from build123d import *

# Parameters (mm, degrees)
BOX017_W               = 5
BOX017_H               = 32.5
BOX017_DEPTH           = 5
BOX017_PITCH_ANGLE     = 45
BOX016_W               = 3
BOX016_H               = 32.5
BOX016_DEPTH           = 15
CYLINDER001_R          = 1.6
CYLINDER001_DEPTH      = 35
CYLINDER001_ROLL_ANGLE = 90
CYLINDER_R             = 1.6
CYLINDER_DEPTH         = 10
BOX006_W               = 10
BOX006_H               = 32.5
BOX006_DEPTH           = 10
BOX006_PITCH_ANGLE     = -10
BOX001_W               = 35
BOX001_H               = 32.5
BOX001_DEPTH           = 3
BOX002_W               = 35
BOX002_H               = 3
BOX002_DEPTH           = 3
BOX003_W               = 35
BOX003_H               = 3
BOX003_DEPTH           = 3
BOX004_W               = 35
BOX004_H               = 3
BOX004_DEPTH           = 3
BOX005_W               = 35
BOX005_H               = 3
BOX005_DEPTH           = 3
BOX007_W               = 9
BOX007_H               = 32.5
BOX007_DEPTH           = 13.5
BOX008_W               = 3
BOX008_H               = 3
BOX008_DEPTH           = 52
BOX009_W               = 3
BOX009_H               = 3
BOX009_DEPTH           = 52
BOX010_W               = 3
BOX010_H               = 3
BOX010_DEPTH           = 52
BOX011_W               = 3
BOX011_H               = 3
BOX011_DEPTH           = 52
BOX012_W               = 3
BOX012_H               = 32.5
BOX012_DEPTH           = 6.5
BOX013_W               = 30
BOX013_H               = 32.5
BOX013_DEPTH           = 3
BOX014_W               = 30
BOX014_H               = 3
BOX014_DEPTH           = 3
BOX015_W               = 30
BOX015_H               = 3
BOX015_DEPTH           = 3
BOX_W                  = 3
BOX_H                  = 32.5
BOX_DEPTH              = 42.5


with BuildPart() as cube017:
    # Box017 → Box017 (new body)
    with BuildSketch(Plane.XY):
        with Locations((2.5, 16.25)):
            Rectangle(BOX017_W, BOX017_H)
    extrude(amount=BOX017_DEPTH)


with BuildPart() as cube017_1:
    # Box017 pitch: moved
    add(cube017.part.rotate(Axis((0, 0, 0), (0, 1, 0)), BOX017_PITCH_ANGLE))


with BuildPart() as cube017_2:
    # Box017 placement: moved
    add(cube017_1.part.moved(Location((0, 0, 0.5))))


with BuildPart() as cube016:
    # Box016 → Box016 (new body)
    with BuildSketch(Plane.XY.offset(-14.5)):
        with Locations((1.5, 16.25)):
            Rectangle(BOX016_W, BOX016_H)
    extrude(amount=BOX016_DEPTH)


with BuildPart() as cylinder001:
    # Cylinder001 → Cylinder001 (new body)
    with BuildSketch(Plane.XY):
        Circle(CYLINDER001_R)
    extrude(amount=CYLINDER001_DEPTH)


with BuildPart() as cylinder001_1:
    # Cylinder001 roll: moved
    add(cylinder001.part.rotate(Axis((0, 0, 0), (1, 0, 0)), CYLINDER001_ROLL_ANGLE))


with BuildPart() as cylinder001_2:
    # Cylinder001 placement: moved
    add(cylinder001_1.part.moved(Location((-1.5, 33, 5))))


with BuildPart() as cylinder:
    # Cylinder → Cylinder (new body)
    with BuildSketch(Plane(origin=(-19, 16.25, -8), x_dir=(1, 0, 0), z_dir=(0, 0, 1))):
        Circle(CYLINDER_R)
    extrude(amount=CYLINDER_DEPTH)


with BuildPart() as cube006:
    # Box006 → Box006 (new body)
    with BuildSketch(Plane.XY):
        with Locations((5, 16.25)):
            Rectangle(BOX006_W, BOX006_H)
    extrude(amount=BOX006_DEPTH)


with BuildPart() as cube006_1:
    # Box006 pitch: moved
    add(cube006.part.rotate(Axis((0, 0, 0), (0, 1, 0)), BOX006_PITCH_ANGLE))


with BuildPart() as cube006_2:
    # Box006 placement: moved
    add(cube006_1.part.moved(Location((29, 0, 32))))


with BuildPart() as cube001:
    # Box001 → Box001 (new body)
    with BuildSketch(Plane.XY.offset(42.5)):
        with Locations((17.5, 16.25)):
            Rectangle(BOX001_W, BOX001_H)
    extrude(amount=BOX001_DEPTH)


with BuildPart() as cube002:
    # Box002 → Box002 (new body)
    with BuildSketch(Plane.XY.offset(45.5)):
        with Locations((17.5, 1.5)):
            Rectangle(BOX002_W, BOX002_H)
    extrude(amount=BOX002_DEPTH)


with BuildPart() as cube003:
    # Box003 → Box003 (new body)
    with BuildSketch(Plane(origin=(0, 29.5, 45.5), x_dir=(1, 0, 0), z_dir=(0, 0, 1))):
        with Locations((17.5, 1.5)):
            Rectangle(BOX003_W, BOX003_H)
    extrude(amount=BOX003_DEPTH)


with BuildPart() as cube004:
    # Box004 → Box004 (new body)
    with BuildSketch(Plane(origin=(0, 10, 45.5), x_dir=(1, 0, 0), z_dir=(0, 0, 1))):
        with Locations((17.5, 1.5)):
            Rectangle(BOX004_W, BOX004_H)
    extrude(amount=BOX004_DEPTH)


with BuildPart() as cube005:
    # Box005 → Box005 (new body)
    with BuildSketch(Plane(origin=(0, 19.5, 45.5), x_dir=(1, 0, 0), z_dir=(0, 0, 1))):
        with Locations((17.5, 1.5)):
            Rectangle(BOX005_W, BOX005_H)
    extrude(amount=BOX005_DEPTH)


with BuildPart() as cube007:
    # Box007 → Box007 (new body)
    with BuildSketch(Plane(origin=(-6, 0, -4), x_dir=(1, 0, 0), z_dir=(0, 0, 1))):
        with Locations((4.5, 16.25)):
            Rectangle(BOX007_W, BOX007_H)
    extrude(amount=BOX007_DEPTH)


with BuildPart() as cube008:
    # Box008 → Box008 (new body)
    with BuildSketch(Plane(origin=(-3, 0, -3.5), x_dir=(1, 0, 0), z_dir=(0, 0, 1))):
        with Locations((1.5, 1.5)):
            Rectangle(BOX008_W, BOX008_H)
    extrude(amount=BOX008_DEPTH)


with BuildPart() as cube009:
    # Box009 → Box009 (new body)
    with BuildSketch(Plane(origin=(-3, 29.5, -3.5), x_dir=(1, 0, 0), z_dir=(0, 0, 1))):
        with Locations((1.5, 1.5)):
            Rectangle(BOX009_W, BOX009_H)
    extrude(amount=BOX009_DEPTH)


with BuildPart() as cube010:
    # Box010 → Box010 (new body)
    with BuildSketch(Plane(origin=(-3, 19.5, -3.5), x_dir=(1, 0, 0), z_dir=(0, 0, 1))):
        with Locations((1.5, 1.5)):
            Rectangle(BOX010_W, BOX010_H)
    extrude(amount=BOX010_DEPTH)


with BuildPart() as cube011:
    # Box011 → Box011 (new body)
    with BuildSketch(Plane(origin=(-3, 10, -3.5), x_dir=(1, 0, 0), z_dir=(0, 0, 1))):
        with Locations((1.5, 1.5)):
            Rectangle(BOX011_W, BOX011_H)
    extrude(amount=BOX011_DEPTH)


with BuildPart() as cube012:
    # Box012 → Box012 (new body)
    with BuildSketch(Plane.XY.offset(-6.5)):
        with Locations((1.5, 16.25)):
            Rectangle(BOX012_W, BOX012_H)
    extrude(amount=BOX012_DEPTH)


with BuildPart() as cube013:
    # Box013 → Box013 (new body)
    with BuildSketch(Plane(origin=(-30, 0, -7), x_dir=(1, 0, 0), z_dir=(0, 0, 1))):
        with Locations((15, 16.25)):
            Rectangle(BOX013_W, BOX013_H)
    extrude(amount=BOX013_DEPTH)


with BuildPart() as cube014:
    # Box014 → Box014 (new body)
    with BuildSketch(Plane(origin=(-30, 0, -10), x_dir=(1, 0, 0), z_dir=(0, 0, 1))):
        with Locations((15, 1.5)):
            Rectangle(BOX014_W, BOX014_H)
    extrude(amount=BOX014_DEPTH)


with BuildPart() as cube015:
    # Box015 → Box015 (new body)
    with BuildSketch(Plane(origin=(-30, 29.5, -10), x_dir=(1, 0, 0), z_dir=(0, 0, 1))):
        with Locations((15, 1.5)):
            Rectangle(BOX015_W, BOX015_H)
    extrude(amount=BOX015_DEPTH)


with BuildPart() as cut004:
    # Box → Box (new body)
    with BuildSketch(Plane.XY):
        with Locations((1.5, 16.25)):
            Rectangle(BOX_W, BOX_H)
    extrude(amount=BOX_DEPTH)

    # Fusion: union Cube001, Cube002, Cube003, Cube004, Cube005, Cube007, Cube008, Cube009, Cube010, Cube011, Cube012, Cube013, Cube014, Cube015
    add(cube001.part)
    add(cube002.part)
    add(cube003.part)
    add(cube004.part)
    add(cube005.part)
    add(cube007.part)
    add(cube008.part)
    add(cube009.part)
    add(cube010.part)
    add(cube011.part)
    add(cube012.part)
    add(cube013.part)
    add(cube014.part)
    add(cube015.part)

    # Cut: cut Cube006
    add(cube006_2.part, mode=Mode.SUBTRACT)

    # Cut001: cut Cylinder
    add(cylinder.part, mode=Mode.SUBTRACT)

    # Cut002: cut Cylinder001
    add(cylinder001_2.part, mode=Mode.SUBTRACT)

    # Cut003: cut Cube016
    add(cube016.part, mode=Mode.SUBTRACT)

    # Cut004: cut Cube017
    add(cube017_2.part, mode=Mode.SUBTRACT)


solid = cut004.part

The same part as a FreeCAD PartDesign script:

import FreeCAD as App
import Part
import Sketcher
Q = App.Units.Quantity


def add_polygon(sketch, points):
    """Adds a closed chain of lines whose ends are joined by coincident constraints."""
    first, n = sketch.GeometryCount, len(points)
    for a, b in zip(points, points[1:] + points[:1]):
        sketch.addGeometry(Part.LineSegment(App.Vector(*a, 0), App.Vector(*b, 0)), False)
    for i in range(n):
        sketch.addConstraint(Sketcher.Constraint("Coincident", first + i, 2, first + (i + 1) % n, 1))

doc = App.newDocument("Part")
body = doc.addObject("PartDesign::Body", "Body")

sketch1 = body.newObject("Sketcher::SketchObject", "Sketch")
sketch1.AttachmentSupport = (doc.getObject("XY_Plane"), [""])
sketch1.MapMode = "FlatFace"
add_polygon(sketch1, [(0, 32), (0, 0), (5, 0), (5, 32)])
sketch1.addConstraint([
    Sketcher.Constraint("Vertical", 0),
    Sketcher.Constraint("Horizontal", 1),
    Sketcher.Constraint("Vertical", 2),
    Sketcher.Constraint("Horizontal", 3),
    Sketcher.Constraint("Coincident", 0, 2, -1, 1),
    Sketcher.Constraint("DistanceX", 1, 1, 1, 2, Q("5 mm")),
    Sketcher.Constraint("DistanceY", 0, 2, 0, 1, Q("32.5 mm")),
])
pad1 = body.newObject("PartDesign::Pad", "Pad")
pad1.Profile = sketch1
pad1.Length = 5
body2 = doc.addObject("PartDesign::Body", "Body001")
doc.recompute()

body.Placement = App.Placement(App.Vector(0, 0, 0), App.Rotation(App.Vector(0, 1, 0), 45))
boolean = body2.newObject("PartDesign::Boolean", "Boolean")
boolean.Type = "Fuse"
boolean.addObjects([body])
body3 = doc.addObject("PartDesign::Body", "Body002")
doc.recompute()

body2.Placement = App.Placement(App.Vector(0, 0, 0.5), App.Rotation(App.Vector(0, 0, 1), 0))
boolean2 = body3.newObject("PartDesign::Boolean", "Boolean001")
boolean2.Type = "Fuse"
boolean2.addObjects([body2])
body4 = doc.addObject("PartDesign::Body", "Body003")

sketch2 = body4.newObject("Sketcher::SketchObject", "Sketch001")
sketch2.AttachmentSupport = (doc.getObject("XY_Plane003"), [""])
sketch2.MapMode = "FlatFace"
sketch2.AttachmentOffset = App.Placement(App.Vector(0, 0, -14.5), App.Rotation())
add_polygon(sketch2, [(0, 32.5), (0, 0), (3, 0), (3, 32.5)])
sketch2.addConstraint([
    Sketcher.Constraint("Vertical", 0),
    Sketcher.Constraint("Horizontal", 1),
    Sketcher.Constraint("Vertical", 2),
    Sketcher.Constraint("Horizontal", 3),
    Sketcher.Constraint("Coincident", 0, 2, -1, 1),
    Sketcher.Constraint("DistanceX", 1, 1, 1, 2, Q("3 mm")),
    Sketcher.Constraint("DistanceY", 0, 2, 0, 1, Q("32.5 mm")),
])
pad2 = body4.newObject("PartDesign::Pad", "Pad001")
pad2.Profile = sketch2
pad2.Length = 15
body5 = doc.addObject("PartDesign::Body", "Body004")

sketch3 = body5.newObject("Sketcher::SketchObject", "Sketch002")
sketch3.AttachmentSupport = (doc.getObject("XY_Plane004"), [""])
sketch3.MapMode = "FlatFace"
sketch3.addGeometry(Part.Circle(App.Vector(0, 0, 0), App.Vector(0, 0, 1), 1.6), False)
sketch3.addConstraint([
    Sketcher.Constraint("Coincident", 0, 3, -1, 1),
    Sketcher.Constraint("Diameter", 0, Q("3.2 mm")),
])
pad3 = body5.newObject("PartDesign::Pad", "Pad002")
pad3.Profile = sketch3
pad3.Length = 35
body6 = doc.addObject("PartDesign::Body", "Body005")
doc.recompute()

body5.Placement = App.Placement(App.Vector(0, 0, 0), App.Rotation(App.Vector(1, 0, 0), 90))
boolean3 = body6.newObject("PartDesign::Boolean", "Boolean002")
boolean3.Type = "Fuse"
boolean3.addObjects([body5])
body7 = doc.addObject("PartDesign::Body", "Body006")
doc.recompute()

body6.Placement = App.Placement(App.Vector(-1.5, 33, 5), App.Rotation(App.Vector(0, 0, 1), 0))
boolean4 = body7.newObject("PartDesign::Boolean", "Boolean003")
boolean4.Type = "Fuse"
boolean4.addObjects([body6])
body8 = doc.addObject("PartDesign::Body", "Body007")

sketch4 = body8.newObject("Sketcher::SketchObject", "Sketch003")
sketch4.AttachmentSupport = (doc.getObject("XY_Plane007"), [""])
sketch4.MapMode = "FlatFace"
sketch4.AttachmentOffset = App.Placement(App.Vector(0, 0, -8), App.Rotation())
sketch4.addGeometry(Part.Circle(App.Vector(-19, 16.2, 0), App.Vector(0, 0, 1), 1.6), False)
sketch4.addConstraint([
    Sketcher.Constraint("Diameter", 0, Q("3.2 mm")),
    Sketcher.Constraint("DistanceX", 0, 3, -1, 1, Q("19 mm")),
    Sketcher.Constraint("DistanceY", -1, 1, 0, 3, Q("16.25 mm")),
])
pad4 = body8.newObject("PartDesign::Pad", "Pad003")
pad4.Profile = sketch4
pad4.Length = 10
body9 = doc.addObject("PartDesign::Body", "Body008")

sketch5 = body9.newObject("Sketcher::SketchObject", "Sketch004")
sketch5.AttachmentSupport = (doc.getObject("XY_Plane008"), [""])
sketch5.MapMode = "FlatFace"
add_polygon(sketch5, [(0, 32), (0, 0), (10, 0), (10, 32)])
sketch5.addConstraint([
    Sketcher.Constraint("Vertical", 0),
    Sketcher.Constraint("Horizontal", 1),
    Sketcher.Constraint("Vertical", 2),
    Sketcher.Constraint("Horizontal", 3),
    Sketcher.Constraint("Coincident", 0, 2, -1, 1),
    Sketcher.Constraint("DistanceX", 1, 1, 1, 2, Q("10 mm")),
    Sketcher.Constraint("DistanceY", 0, 2, 0, 1, Q("32.5 mm")),
])
pad5 = body9.newObject("PartDesign::Pad", "Pad004")
pad5.Profile = sketch5
pad5.Length = 10
body10 = doc.addObject("PartDesign::Body", "Body009")
doc.recompute()

body9.Placement = App.Placement(App.Vector(0, 0, 0), App.Rotation(App.Vector(0, 1, 0), 350))
boolean5 = body10.newObject("PartDesign::Boolean", "Boolean004")
boolean5.Type = "Fuse"
boolean5.addObjects([body9])
body11 = doc.addObject("PartDesign::Body", "Body010")
doc.recompute()

body10.Placement = App.Placement(App.Vector(29, 0, 32), App.Rotation(App.Vector(0, 0, 1), 0))
boolean6 = body11.newObject("PartDesign::Boolean", "Boolean005")
boolean6.Type = "Fuse"
boolean6.addObjects([body10])
body12 = doc.addObject("PartDesign::Body", "Body011")

sketch6 = body12.newObject("Sketcher::SketchObject", "Sketch005")
sketch6.AttachmentSupport = (doc.getObject("XY_Plane011"), [""])
sketch6.MapMode = "FlatFace"
sketch6.AttachmentOffset = App.Placement(App.Vector(0, 0, 42.5), App.Rotation())
add_polygon(sketch6, [(0, 32), (0, 0), (35, 0), (35, 32)])
sketch6.addConstraint([
    Sketcher.Constraint("Vertical", 0),
    Sketcher.Constraint("Horizontal", 1),
    Sketcher.Constraint("Vertical", 2),
    Sketcher.Constraint("Horizontal", 3),
    Sketcher.Constraint("Coincident", 0, 2, -1, 1),
    Sketcher.Constraint("DistanceX", 1, 1, 1, 2, Q("35 mm")),
    Sketcher.Constraint("DistanceY", 0, 2, 0, 1, Q("32.5 mm")),
])
pad6 = body12.newObject("PartDesign::Pad", "Pad005")
pad6.Profile = sketch6
pad6.Length = 3
body13 = doc.addObject("PartDesign::Body", "Body012")

sketch7 = body13.newObject("Sketcher::SketchObject", "Sketch006")
sketch7.AttachmentSupport = (doc.getObject("XY_Plane012"), [""])
sketch7.MapMode = "FlatFace"
sketch7.AttachmentOffset = App.Placement(App.Vector(0, 0, 45.5), App.Rotation())
add_polygon(sketch7, [(0, 3), (0, 0), (35, 0), (35, 3)])
sketch7.addConstraint([
    Sketcher.Constraint("Vertical", 0),
    Sketcher.Constraint("Horizontal", 1),
    Sketcher.Constraint("Vertical", 2),
    Sketcher.Constraint("Horizontal", 3),
    Sketcher.Constraint("Coincident", 0, 2, -1, 1),
    Sketcher.Constraint("DistanceX", 1, 1, 1, 2, Q("35 mm")),
    Sketcher.Constraint("DistanceY", 0, 2, 0, 1, Q("3 mm")),
])
pad7 = body13.newObject("PartDesign::Pad", "Pad006")
pad7.Profile = sketch7
pad7.Length = 3
body14 = doc.addObject("PartDesign::Body", "Body013")

sketch8 = body14.newObject("Sketcher::SketchObject", "Sketch007")
sketch8.AttachmentSupport = (doc.getObject("XY_Plane013"), [""])
sketch8.MapMode = "FlatFace"
sketch8.AttachmentOffset = App.Placement(App.Vector(0, 0, 45.5), App.Rotation())
add_polygon(sketch8, [(0, 32.5), (0, 29.5), (35, 29.5), (35, 32.5)])
sketch8.addConstraint([
    Sketcher.Constraint("Vertical", 0),
    Sketcher.Constraint("Horizontal", 1),
    Sketcher.Constraint("Vertical", 2),
    Sketcher.Constraint("Horizontal", 3),
    Sketcher.Constraint("PointOnObject", 0, 2, -2),
    Sketcher.Constraint("DistanceX", 1, 1, 1, 2, Q("35 mm")),
    Sketcher.Constraint("DistanceY", 0, 2, 0, 1, Q("3 mm")),
    Sketcher.Constraint("DistanceY", -1, 1, 0, 2, Q("29.5 mm")),
])
pad8 = body14.newObject("PartDesign::Pad", "Pad007")
pad8.Profile = sketch8
pad8.Length = 3
body15 = doc.addObject("PartDesign::Body", "Body014")

sketch9 = body15.newObject("Sketcher::SketchObject", "Sketch008")
sketch9.AttachmentSupport = (doc.getObject("XY_Plane014"), [""])
sketch9.MapMode = "FlatFace"
sketch9.AttachmentOffset = App.Placement(App.Vector(0, 0, 45.5), App.Rotation())
add_polygon(sketch9, [(0, 13), (0, 10), (35, 10), (35, 13)])
sketch9.addConstraint([
    Sketcher.Constraint("Vertical", 0),
    Sketcher.Constraint("Horizontal", 1),
    Sketcher.Constraint("Vertical", 2),
    Sketcher.Constraint("Horizontal", 3),
    Sketcher.Constraint("PointOnObject", 0, 2, -2),
    Sketcher.Constraint("DistanceX", 1, 1, 1, 2, Q("35 mm")),
    Sketcher.Constraint("DistanceY", 0, 2, 0, 1, Q("3 mm")),
    Sketcher.Constraint("DistanceY", -1, 1, 0, 2, Q("10 mm")),
])
pad9 = body15.newObject("PartDesign::Pad", "Pad008")
pad9.Profile = sketch9
pad9.Length = 3
body16 = doc.addObject("PartDesign::Body", "Body015")

sketch10 = body16.newObject("Sketcher::SketchObject", "Sketch009")
sketch10.AttachmentSupport = (doc.getObject("XY_Plane015"), [""])
sketch10.MapMode = "FlatFace"
sketch10.AttachmentOffset = App.Placement(App.Vector(0, 0, 45.5), App.Rotation())
add_polygon(sketch10, [(0, 22.5), (0, 19.5), (35, 19.5), (35, 22.5)])
sketch10.addConstraint([
    Sketcher.Constraint("Vertical", 0),
    Sketcher.Constraint("Horizontal", 1),
    Sketcher.Constraint("Vertical", 2),
    Sketcher.Constraint("Horizontal", 3),
    Sketcher.Constraint("PointOnObject", 0, 2, -2),
    Sketcher.Constraint("DistanceX", 1, 1, 1, 2, Q("35 mm")),
    Sketcher.Constraint("DistanceY", 0, 2, 0, 1, Q("3 mm")),
    Sketcher.Constraint("DistanceY", -1, 1, 0, 2, Q("19.5 mm")),
])
pad10 = body16.newObject("PartDesign::Pad", "Pad009")
pad10.Profile = sketch10
pad10.Length = 3
body17 = doc.addObject("PartDesign::Body", "Body016")

sketch11 = body17.newObject("Sketcher::SketchObject", "Sketch010")
sketch11.AttachmentSupport = (doc.getObject("XY_Plane016"), [""])
sketch11.MapMode = "FlatFace"
sketch11.AttachmentOffset = App.Placement(App.Vector(0, 0, -4), App.Rotation())
add_polygon(sketch11, [(-6, 32), (-6, 0), (3, 0), (3, 32)])
sketch11.addConstraint([
    Sketcher.Constraint("Vertical", 0),
    Sketcher.Constraint("Horizontal", 1),
    Sketcher.Constraint("Vertical", 2),
    Sketcher.Constraint("Horizontal", 3),
    Sketcher.Constraint("PointOnObject", 0, 2, -1),
    Sketcher.Constraint("DistanceX", 1, 1, 1, 2, Q("9 mm")),
    Sketcher.Constraint("DistanceY", 0, 2, 0, 1, Q("32.5 mm")),
    Sketcher.Constraint("DistanceX", 0, 2, -1, 1, Q("6 mm")),
])
pad11 = body17.newObject("PartDesign::Pad", "Pad010")
pad11.Profile = sketch11
pad11.Length = 13.5
body18 = doc.addObject("PartDesign::Body", "Body017")

sketch12 = body18.newObject("Sketcher::SketchObject", "Sketch011")
sketch12.AttachmentSupport = (doc.getObject("XY_Plane017"), [""])
sketch12.MapMode = "FlatFace"
sketch12.AttachmentOffset = App.Placement(App.Vector(0, 0, -3.5), App.Rotation())
add_polygon(sketch12, [(-3, 3), (-3, 0), (0, 0), (0, 3)])
sketch12.addConstraint([
    Sketcher.Constraint("Vertical", 0),
    Sketcher.Constraint("Horizontal", 1),
    Sketcher.Constraint("Vertical", 2),
    Sketcher.Constraint("Horizontal", 3),
    Sketcher.Constraint("Coincident", 1, 2, -1, 1),
    Sketcher.Constraint("Equal", 3, 0),
    Sketcher.Constraint("DistanceX", 1, 1, 1, 2, Q("3 mm")),
])
pad12 = body18.newObject("PartDesign::Pad", "Pad011")
pad12.Profile = sketch12
pad12.Length = 52
body19 = doc.addObject("PartDesign::Body", "Body018")

sketch13 = body19.newObject("Sketcher::SketchObject", "Sketch012")
sketch13.AttachmentSupport = (doc.getObject("XY_Plane018"), [""])
sketch13.MapMode = "FlatFace"
sketch13.AttachmentOffset = App.Placement(App.Vector(0, 0, -3.5), App.Rotation())
add_polygon(sketch13, [(-3, 32.5), (-3, 29.5), (0, 29.5), (0, 32.5)])
sketch13.addConstraint([
    Sketcher.Constraint("Vertical", 0),
    Sketcher.Constraint("Horizontal", 1),
    Sketcher.Constraint("Vertical", 2),
    Sketcher.Constraint("Horizontal", 3),
    Sketcher.Constraint("PointOnObject", 1, 2, -2),
    Sketcher.Constraint("Equal", 3, 0),
    Sketcher.Constraint("DistanceX", 1, 1, 1, 2, Q("3 mm")),
    Sketcher.Constraint("DistanceY", -1, 1, 0, 2, Q("29.5 mm")),
])
pad13 = body19.newObject("PartDesign::Pad", "Pad012")
pad13.Profile = sketch13
pad13.Length = 52
body20 = doc.addObject("PartDesign::Body", "Body019")

sketch14 = body20.newObject("Sketcher::SketchObject", "Sketch013")
sketch14.AttachmentSupport = (doc.getObject("XY_Plane019"), [""])
sketch14.MapMode = "FlatFace"
sketch14.AttachmentOffset = App.Placement(App.Vector(0, 0, -3.5), App.Rotation())
add_polygon(sketch14, [(-3, 22.5), (-3, 19.5), (0, 19.5), (0, 22.5)])
sketch14.addConstraint([
    Sketcher.Constraint("Vertical", 0),
    Sketcher.Constraint("Horizontal", 1),
    Sketcher.Constraint("Vertical", 2),
    Sketcher.Constraint("Horizontal", 3),
    Sketcher.Constraint("PointOnObject", 1, 2, -2),
    Sketcher.Constraint("Equal", 3, 0),
    Sketcher.Constraint("DistanceX", 1, 1, 1, 2, Q("3 mm")),
    Sketcher.Constraint("DistanceY", -1, 1, 0, 2, Q("19.5 mm")),
])
pad14 = body20.newObject("PartDesign::Pad", "Pad013")
pad14.Profile = sketch14
pad14.Length = 52
body21 = doc.addObject("PartDesign::Body", "Body020")

sketch15 = body21.newObject("Sketcher::SketchObject", "Sketch014")
sketch15.AttachmentSupport = (doc.getObject("XY_Plane020"), [""])
sketch15.MapMode = "FlatFace"
sketch15.AttachmentOffset = App.Placement(App.Vector(0, 0, -3.5), App.Rotation())
add_polygon(sketch15, [(-3, 13), (-3, 10), (0, 10), (0, 13)])
sketch15.addConstraint([
    Sketcher.Constraint("Vertical", 0),
    Sketcher.Constraint("Horizontal", 1),
    Sketcher.Constraint("Vertical", 2),
    Sketcher.Constraint("Horizontal", 3),
    Sketcher.Constraint("PointOnObject", 1, 2, -2),
    Sketcher.Constraint("Equal", 3, 0),
    Sketcher.Constraint("DistanceX", 1, 1, 1, 2, Q("3 mm")),
    Sketcher.Constraint("DistanceY", -1, 1, 0, 2, Q("10 mm")),
])
pad15 = body21.newObject("PartDesign::Pad", "Pad014")
pad15.Profile = sketch15
pad15.Length = 52
body22 = doc.addObject("PartDesign::Body", "Body021")

sketch16 = body22.newObject("Sketcher::SketchObject", "Sketch015")
sketch16.AttachmentSupport = (doc.getObject("XY_Plane021"), [""])
sketch16.MapMode = "FlatFace"
sketch16.AttachmentOffset = App.Placement(App.Vector(0, 0, -6.5), App.Rotation())
add_polygon(sketch16, [(0, 32.5), (0, 0), (3, 0), (3, 32.5)])
sketch16.addConstraint([
    Sketcher.Constraint("Vertical", 0),
    Sketcher.Constraint("Horizontal", 1),
    Sketcher.Constraint("Vertical", 2),
    Sketcher.Constraint("Horizontal", 3),
    Sketcher.Constraint("Coincident", 0, 2, -1, 1),
    Sketcher.Constraint("DistanceX", 1, 1, 1, 2, Q("3 mm")),
    Sketcher.Constraint("DistanceY", 0, 2, 0, 1, Q("32.5 mm")),
])
pad16 = body22.newObject("PartDesign::Pad", "Pad015")
pad16.Profile = sketch16
pad16.Length = 6.5
body23 = doc.addObject("PartDesign::Body", "Body022")

sketch17 = body23.newObject("Sketcher::SketchObject", "Sketch016")
sketch17.AttachmentSupport = (doc.getObject("XY_Plane022"), [""])
sketch17.MapMode = "FlatFace"
sketch17.AttachmentOffset = App.Placement(App.Vector(0, 0, -7), App.Rotation())
add_polygon(sketch17, [(-30, 32), (-30, 0), (0, 0), (0, 32)])
sketch17.addConstraint([
    Sketcher.Constraint("Vertical", 0),
    Sketcher.Constraint("Horizontal", 1),
    Sketcher.Constraint("Vertical", 2),
    Sketcher.Constraint("Horizontal", 3),
    Sketcher.Constraint("Coincident", 1, 2, -1, 1),
    Sketcher.Constraint("DistanceX", 1, 1, 1, 2, Q("30 mm")),
    Sketcher.Constraint("DistanceY", 0, 2, 0, 1, Q("32.5 mm")),
])
pad17 = body23.newObject("PartDesign::Pad", "Pad016")
pad17.Profile = sketch17
pad17.Length = 3
body24 = doc.addObject("PartDesign::Body", "Body023")

sketch18 = body24.newObject("Sketcher::SketchObject", "Sketch017")
sketch18.AttachmentSupport = (doc.getObject("XY_Plane023"), [""])
sketch18.MapMode = "FlatFace"
sketch18.AttachmentOffset = App.Placement(App.Vector(0, 0, -10), App.Rotation())
add_polygon(sketch18, [(-30, 3), (-30, 0), (0, 0), (0, 3)])
sketch18.addConstraint([
    Sketcher.Constraint("Vertical", 0),
    Sketcher.Constraint("Horizontal", 1),
    Sketcher.Constraint("Vertical", 2),
    Sketcher.Constraint("Horizontal", 3),
    Sketcher.Constraint("Coincident", 1, 2, -1, 1),
    Sketcher.Constraint("DistanceX", 1, 1, 1, 2, Q("30 mm")),
    Sketcher.Constraint("DistanceY", 0, 2, 0, 1, Q("3 mm")),
])
pad18 = body24.newObject("PartDesign::Pad", "Pad017")
pad18.Profile = sketch18
pad18.Length = 3
body25 = doc.addObject("PartDesign::Body", "Body024")

sketch19 = body25.newObject("Sketcher::SketchObject", "Sketch018")
sketch19.AttachmentSupport = (doc.getObject("XY_Plane024"), [""])
sketch19.MapMode = "FlatFace"
sketch19.AttachmentOffset = App.Placement(App.Vector(0, 0, -10), App.Rotation())
add_polygon(sketch19, [(-30, 32.5), (-30, 29.5), (0, 29.5), (0, 32.5)])
sketch19.addConstraint([
    Sketcher.Constraint("Vertical", 0),
    Sketcher.Constraint("Horizontal", 1),
    Sketcher.Constraint("Vertical", 2),
    Sketcher.Constraint("Horizontal", 3),
    Sketcher.Constraint("PointOnObject", 1, 2, -2),
    Sketcher.Constraint("DistanceX", 1, 1, 1, 2, Q("30 mm")),
    Sketcher.Constraint("DistanceY", 0, 2, 0, 1, Q("3 mm")),
    Sketcher.Constraint("DistanceY", -1, 1, 0, 2, Q("29.5 mm")),
])
pad19 = body25.newObject("PartDesign::Pad", "Pad018")
pad19.Profile = sketch19
pad19.Length = 3
body26 = doc.addObject("PartDesign::Body", "Body025")

sketch20 = body26.newObject("Sketcher::SketchObject", "Sketch019")
sketch20.AttachmentSupport = (doc.getObject("XY_Plane025"), [""])
sketch20.MapMode = "FlatFace"
add_polygon(sketch20, [(0, 32.5), (0, 0), (3, 0), (3, 32.5)])
sketch20.addConstraint([
    Sketcher.Constraint("Vertical", 0),
    Sketcher.Constraint("Horizontal", 1),
    Sketcher.Constraint("Vertical", 2),
    Sketcher.Constraint("Horizontal", 3),
    Sketcher.Constraint("Coincident", 0, 2, -1, 1),
    Sketcher.Constraint("DistanceX", 1, 1, 1, 2, Q("3 mm")),
    Sketcher.Constraint("DistanceY", 0, 2, 0, 1, Q("32.5 mm")),
])
pad20 = body26.newObject("PartDesign::Pad", "Pad019")
pad20.Profile = sketch20
pad20.Length = 42.5
doc.recompute()

boolean7 = body26.newObject("PartDesign::Boolean", "Boolean006")
boolean7.Type = "Fuse"
boolean7.addObjects([body12])
doc.recompute()

boolean8 = body26.newObject("PartDesign::Boolean", "Boolean007")
boolean8.Type = "Fuse"
boolean8.addObjects([body13])
doc.recompute()

boolean9 = body26.newObject("PartDesign::Boolean", "Boolean008")
boolean9.Type = "Fuse"
boolean9.addObjects([body14])
doc.recompute()

boolean10 = body26.newObject("PartDesign::Boolean", "Boolean009")
boolean10.Type = "Fuse"
boolean10.addObjects([body15])
doc.recompute()

boolean11 = body26.newObject("PartDesign::Boolean", "Boolean010")
boolean11.Type = "Fuse"
boolean11.addObjects([body16])
doc.recompute()

boolean12 = body26.newObject("PartDesign::Boolean", "Boolean011")
boolean12.Type = "Fuse"
boolean12.addObjects([body17])
doc.recompute()

boolean13 = body26.newObject("PartDesign::Boolean", "Boolean012")
boolean13.Type = "Fuse"
boolean13.addObjects([body18])
doc.recompute()

boolean14 = body26.newObject("PartDesign::Boolean", "Boolean013")
boolean14.Type = "Fuse"
boolean14.addObjects([body19])
doc.recompute()

boolean15 = body26.newObject("PartDesign::Boolean", "Boolean014")
boolean15.Type = "Fuse"
boolean15.addObjects([body20])
doc.recompute()

boolean16 = body26.newObject("PartDesign::Boolean", "Boolean015")
boolean16.Type = "Fuse"
boolean16.addObjects([body21])
doc.recompute()

boolean17 = body26.newObject("PartDesign::Boolean", "Boolean016")
boolean17.Type = "Fuse"
boolean17.addObjects([body22])
doc.recompute()

boolean18 = body26.newObject("PartDesign::Boolean", "Boolean017")
boolean18.Type = "Fuse"
boolean18.addObjects([body23])
doc.recompute()

boolean19 = body26.newObject("PartDesign::Boolean", "Boolean018")
boolean19.Type = "Fuse"
boolean19.addObjects([body24])
doc.recompute()

boolean20 = body26.newObject("PartDesign::Boolean", "Boolean019")
boolean20.Type = "Fuse"
boolean20.addObjects([body25])
doc.recompute()

boolean21 = body26.newObject("PartDesign::Boolean", "Boolean020")
boolean21.Type = "Cut"
boolean21.addObjects([body11])
doc.recompute()

boolean22 = body26.newObject("PartDesign::Boolean", "Boolean021")
boolean22.Type = "Cut"
boolean22.addObjects([body8])
doc.recompute()

boolean23 = body26.newObject("PartDesign::Boolean", "Boolean022")
boolean23.Type = "Cut"
boolean23.addObjects([body7])
doc.recompute()

boolean24 = body26.newObject("PartDesign::Boolean", "Boolean023")
boolean24.Type = "Cut"
boolean24.addObjects([body4])
doc.recompute()

boolean25 = body26.newObject("PartDesign::Boolean", "Boolean024")
boolean25.Type = "Cut"
boolean25.addObjects([body3])

doc.recompute()
